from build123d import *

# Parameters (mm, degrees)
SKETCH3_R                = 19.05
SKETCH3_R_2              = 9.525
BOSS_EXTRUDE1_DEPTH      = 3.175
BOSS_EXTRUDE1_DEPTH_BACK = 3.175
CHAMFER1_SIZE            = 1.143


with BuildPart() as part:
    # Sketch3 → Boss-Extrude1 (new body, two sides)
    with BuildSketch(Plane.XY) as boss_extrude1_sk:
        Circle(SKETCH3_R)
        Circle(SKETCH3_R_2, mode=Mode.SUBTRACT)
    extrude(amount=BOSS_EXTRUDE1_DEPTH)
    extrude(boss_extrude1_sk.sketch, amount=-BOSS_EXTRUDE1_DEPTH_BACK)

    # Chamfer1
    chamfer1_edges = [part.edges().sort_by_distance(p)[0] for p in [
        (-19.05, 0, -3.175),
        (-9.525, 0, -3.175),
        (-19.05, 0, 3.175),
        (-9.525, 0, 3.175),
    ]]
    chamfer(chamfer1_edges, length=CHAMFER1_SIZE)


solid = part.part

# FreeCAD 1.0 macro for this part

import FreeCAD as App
import Part
import Sketcher
Q = App.Units.Quantity


def edges_at(feature, points):
    """Names of the edges that pass closest to the given points."""
    edges = feature.Shape.Edges
    near = lambda p: min(range(len(edges)), key=lambda i: edges[i].distToShape(Part.Vertex(*p))[0])
    return sorted({f"Edge{near(p) + 1}" for p in points})

doc = App.newDocument("Part")
body = doc.addObject("PartDesign::Body", "Body")

# Sketch on XY plane
sketch1 = body.newObject("Sketcher::SketchObject", "Sketch")
sketch1.AttachmentSupport = (doc.getObject("XY_Plane"), [""])
sketch1.MapMode = "FlatFace"
sketch1.addGeometry(Part.Circle(App.Vector(0, 0, 0), App.Vector(0, 0, 1), 19), False)
sketch1.addGeometry(Part.Circle(App.Vector(0, 0, 0), App.Vector(0, 0, 1), 10), False)
sketch1.addConstraint(Sketcher.Constraint("Coincident", 0, 3, -1, 1))
sketch1.addConstraint(Sketcher.Constraint("Coincident", 1, 3, -1, 1))
sketch1.addConstraint(Sketcher.Constraint("Diameter", 0, Q("1.5 in")))
sketch1.addConstraint(Sketcher.Constraint("Diameter", 1, Q("0.75 in")))
pad1 = body.newObject("PartDesign::Pad", "Pad")
pad1.Profile = sketch1
pad1.Type = "TwoLengths"
pad1.Length = Q("0.125 in")
pad1.Length2 = Q("0.125 in")
doc.recompute()

chamfer = body.newObject("PartDesign::Chamfer", "Chamfer")
chamfer.Base = (pad1, edges_at(pad1, [
    (-19.05, 0, -3.175),
    (-9.525, 0, -3.175),
    (-19.05, 0, 3.175),
    (-9.525, 0, 3.175),
]))
chamfer.Size = Q("0.045 in")

doc.recompute()
